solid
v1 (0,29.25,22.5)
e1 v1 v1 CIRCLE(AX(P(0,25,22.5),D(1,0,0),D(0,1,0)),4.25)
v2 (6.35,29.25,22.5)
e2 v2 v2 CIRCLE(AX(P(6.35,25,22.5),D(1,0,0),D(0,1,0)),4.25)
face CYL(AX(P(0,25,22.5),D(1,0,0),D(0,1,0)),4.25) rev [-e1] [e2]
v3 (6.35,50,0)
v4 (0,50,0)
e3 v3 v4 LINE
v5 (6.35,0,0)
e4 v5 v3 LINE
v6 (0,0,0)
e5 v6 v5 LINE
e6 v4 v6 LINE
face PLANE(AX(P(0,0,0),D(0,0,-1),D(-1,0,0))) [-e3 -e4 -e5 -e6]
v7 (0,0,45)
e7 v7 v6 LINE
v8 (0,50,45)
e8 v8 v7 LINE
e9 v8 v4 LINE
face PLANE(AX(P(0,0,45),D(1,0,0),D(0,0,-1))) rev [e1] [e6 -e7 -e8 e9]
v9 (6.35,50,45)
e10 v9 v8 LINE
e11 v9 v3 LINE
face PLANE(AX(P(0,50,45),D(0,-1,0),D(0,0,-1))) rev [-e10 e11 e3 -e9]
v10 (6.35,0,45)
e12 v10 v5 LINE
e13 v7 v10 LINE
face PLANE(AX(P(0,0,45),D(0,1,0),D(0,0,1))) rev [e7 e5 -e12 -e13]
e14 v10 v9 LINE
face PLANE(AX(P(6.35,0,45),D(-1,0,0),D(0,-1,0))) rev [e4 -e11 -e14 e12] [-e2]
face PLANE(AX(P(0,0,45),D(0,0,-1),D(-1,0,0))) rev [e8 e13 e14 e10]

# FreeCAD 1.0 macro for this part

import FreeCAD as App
import Part
import Sketcher


def add_polygon(sketch, points):
    """Adds a closed chain of lines whose ends are joined by coincident constraints."""
    first, n = sketch.GeometryCount, len(points)
    for a, b in zip(points, points[1:] + points[:1]):
        sketch.addGeometry(Part.LineSegment(App.Vector(*a, 0), App.Vector(*b, 0)), False)
    for i in range(n):
        sketch.addConstraint(Sketcher.Constraint("Coincident", first + i, 2, first + (i + 1) % n, 1))

doc = App.newDocument("Part")
body = doc.addObject("PartDesign::Body", "Body")

sketch1 = body.newObject("Sketcher::SketchObject", "Sketch")
sketch1.AttachmentSupport = (doc.getObject("XY_Plane"), [""])
sketch1.MapMode = "FlatFace"
add_polygon(sketch1, [(0, 50), (0, 0), (6, 0), (6, 50)])
sketch1.addConstraint([
    Sketcher.Constraint("Vertical", 0),
    Sketcher.Constraint("Horizontal", 1),
    Sketcher.Constraint("Vertical", 2),
    Sketcher.Constraint("Horizontal", 3),
    Sketcher.Constraint("Coincident", 0, 2, -1, 1),
    Sketcher.Constraint("DistanceY", 0, 2, 0, 1, 50.0),
    Sketcher.Constraint("DistanceX", 1, 1, 1, 2, 6.35),
])
pad1 = body.newObject("PartDesign::Pad", "Pad")
pad1.Profile = sketch1
pad1.Length = 45

sketch2 = body.newObject("Sketcher::SketchObject", "Sketch001")
sketch2.AttachmentSupport = (doc.getObject("YZ_Plane"), [""])
sketch2.MapMode = "FlatFace"
sketch2.AttachmentOffset = App.Placement(App.Vector(0, 0, 6.35), App.Rotation())
sketch2.addGeometry(Part.Circle(App.Vector(25, 22.5, 0), App.Vector(0, 0, 1), 4.2), False)
sketch2.addConstraint([
    Sketcher.Constraint("Diameter", 0, 8.5),
    Sketcher.Constraint("DistanceX", -1, 1, 0, 3, 25.0),
    Sketcher.Constraint("DistanceY", -1, 1, 0, 3, 22.5),
])
pocket1 = body.newObject("PartDesign::Pocket", "Pocket")
pocket1.Profile = sketch2
pocket1.Type = "ThroughAll"

doc.recompute()
